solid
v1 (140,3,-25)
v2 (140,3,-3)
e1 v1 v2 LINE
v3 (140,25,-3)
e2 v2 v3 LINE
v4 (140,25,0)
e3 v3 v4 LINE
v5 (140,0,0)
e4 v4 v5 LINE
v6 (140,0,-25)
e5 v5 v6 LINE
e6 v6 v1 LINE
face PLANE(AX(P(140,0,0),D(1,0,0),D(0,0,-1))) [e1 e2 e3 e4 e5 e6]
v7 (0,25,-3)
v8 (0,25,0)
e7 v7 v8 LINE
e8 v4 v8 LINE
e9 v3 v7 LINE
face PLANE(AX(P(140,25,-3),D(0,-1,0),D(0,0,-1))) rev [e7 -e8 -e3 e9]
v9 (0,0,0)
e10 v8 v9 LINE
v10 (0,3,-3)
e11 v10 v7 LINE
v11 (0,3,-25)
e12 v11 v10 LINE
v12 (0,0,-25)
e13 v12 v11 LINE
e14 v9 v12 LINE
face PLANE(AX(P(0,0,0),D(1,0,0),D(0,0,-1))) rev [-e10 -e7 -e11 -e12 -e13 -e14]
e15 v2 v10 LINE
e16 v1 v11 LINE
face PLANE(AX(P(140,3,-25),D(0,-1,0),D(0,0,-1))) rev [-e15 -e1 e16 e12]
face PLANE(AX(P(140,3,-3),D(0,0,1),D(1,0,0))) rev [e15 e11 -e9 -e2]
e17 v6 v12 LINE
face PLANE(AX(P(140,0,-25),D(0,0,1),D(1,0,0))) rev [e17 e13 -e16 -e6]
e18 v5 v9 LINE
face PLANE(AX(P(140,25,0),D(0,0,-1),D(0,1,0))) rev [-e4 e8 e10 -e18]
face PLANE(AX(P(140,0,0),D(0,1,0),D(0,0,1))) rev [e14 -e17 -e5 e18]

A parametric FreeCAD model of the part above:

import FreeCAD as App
import Part
import Sketcher
from FreeCAD import Vector


def add_polygon(sketch, points):
    """Adds a closed chain of lines whose ends are joined by coincident constraints."""
    first, n = sketch.GeometryCount, len(points)
    for a, b in zip(points, points[1:] + points[:1]):
        sketch.addGeometry(Part.LineSegment(App.Vector(*a, 0), App.Vector(*b, 0)), False)
    for i in range(n):
        sketch.addConstraint(Sketcher.Constraint("Coincident", first + i, 2, first + (i + 1) % n, 1))

doc = App.newDocument("Part")
body = doc.addObject("PartDesign::Body", "Body")

# Sketch on YZ plane
sketch1 = body.newObject("Sketcher::SketchObject", "Sketch")
sketch1.AttachmentSupport = (doc.getObject("YZ_Plane"), [""])
sketch1.MapMode = "FlatFace"
add_polygon(sketch1, [(25, 0), (0, 0), (0, -25), (3, -25), (3, -3), (25, -3)])  # lines 0-5
sketch1.addConstraint(Sketcher.Constraint("Horizontal", 0))
sketch1.addConstraint(Sketcher.Constraint("Vertical", 1))
sketch1.addConstraint(Sketcher.Constraint("Horizontal", 2))
sketch1.addConstraint(Sketcher.Constraint("Vertical", 3))
sketch1.addConstraint(Sketcher.Constraint("Horizontal", 4))
sketch1.addConstraint(Sketcher.Constraint("Vertical", 5))
sketch1.addConstraint(Sketcher.Constraint("Coincident", 0, 2, -1, 1))
sketch1.addConstraint(Sketcher.Constraint("Equal", 0, 1))
sketch1.addConstraint(Sketcher.Constraint("Equal", 4, 3))
sketch1.addConstraint(Sketcher.Constraint("DistanceX", 0, 2, 0, 1, 25.0))
sketch1.addConstraint(Sketcher.Constraint("DistanceX", 2, 1, 2, 2, 3.0))
pad1 = body.newObject("PartDesign::Pad", "Pad")
pad1.Profile = sketch1
pad1.Length = 140

doc.recompute()
